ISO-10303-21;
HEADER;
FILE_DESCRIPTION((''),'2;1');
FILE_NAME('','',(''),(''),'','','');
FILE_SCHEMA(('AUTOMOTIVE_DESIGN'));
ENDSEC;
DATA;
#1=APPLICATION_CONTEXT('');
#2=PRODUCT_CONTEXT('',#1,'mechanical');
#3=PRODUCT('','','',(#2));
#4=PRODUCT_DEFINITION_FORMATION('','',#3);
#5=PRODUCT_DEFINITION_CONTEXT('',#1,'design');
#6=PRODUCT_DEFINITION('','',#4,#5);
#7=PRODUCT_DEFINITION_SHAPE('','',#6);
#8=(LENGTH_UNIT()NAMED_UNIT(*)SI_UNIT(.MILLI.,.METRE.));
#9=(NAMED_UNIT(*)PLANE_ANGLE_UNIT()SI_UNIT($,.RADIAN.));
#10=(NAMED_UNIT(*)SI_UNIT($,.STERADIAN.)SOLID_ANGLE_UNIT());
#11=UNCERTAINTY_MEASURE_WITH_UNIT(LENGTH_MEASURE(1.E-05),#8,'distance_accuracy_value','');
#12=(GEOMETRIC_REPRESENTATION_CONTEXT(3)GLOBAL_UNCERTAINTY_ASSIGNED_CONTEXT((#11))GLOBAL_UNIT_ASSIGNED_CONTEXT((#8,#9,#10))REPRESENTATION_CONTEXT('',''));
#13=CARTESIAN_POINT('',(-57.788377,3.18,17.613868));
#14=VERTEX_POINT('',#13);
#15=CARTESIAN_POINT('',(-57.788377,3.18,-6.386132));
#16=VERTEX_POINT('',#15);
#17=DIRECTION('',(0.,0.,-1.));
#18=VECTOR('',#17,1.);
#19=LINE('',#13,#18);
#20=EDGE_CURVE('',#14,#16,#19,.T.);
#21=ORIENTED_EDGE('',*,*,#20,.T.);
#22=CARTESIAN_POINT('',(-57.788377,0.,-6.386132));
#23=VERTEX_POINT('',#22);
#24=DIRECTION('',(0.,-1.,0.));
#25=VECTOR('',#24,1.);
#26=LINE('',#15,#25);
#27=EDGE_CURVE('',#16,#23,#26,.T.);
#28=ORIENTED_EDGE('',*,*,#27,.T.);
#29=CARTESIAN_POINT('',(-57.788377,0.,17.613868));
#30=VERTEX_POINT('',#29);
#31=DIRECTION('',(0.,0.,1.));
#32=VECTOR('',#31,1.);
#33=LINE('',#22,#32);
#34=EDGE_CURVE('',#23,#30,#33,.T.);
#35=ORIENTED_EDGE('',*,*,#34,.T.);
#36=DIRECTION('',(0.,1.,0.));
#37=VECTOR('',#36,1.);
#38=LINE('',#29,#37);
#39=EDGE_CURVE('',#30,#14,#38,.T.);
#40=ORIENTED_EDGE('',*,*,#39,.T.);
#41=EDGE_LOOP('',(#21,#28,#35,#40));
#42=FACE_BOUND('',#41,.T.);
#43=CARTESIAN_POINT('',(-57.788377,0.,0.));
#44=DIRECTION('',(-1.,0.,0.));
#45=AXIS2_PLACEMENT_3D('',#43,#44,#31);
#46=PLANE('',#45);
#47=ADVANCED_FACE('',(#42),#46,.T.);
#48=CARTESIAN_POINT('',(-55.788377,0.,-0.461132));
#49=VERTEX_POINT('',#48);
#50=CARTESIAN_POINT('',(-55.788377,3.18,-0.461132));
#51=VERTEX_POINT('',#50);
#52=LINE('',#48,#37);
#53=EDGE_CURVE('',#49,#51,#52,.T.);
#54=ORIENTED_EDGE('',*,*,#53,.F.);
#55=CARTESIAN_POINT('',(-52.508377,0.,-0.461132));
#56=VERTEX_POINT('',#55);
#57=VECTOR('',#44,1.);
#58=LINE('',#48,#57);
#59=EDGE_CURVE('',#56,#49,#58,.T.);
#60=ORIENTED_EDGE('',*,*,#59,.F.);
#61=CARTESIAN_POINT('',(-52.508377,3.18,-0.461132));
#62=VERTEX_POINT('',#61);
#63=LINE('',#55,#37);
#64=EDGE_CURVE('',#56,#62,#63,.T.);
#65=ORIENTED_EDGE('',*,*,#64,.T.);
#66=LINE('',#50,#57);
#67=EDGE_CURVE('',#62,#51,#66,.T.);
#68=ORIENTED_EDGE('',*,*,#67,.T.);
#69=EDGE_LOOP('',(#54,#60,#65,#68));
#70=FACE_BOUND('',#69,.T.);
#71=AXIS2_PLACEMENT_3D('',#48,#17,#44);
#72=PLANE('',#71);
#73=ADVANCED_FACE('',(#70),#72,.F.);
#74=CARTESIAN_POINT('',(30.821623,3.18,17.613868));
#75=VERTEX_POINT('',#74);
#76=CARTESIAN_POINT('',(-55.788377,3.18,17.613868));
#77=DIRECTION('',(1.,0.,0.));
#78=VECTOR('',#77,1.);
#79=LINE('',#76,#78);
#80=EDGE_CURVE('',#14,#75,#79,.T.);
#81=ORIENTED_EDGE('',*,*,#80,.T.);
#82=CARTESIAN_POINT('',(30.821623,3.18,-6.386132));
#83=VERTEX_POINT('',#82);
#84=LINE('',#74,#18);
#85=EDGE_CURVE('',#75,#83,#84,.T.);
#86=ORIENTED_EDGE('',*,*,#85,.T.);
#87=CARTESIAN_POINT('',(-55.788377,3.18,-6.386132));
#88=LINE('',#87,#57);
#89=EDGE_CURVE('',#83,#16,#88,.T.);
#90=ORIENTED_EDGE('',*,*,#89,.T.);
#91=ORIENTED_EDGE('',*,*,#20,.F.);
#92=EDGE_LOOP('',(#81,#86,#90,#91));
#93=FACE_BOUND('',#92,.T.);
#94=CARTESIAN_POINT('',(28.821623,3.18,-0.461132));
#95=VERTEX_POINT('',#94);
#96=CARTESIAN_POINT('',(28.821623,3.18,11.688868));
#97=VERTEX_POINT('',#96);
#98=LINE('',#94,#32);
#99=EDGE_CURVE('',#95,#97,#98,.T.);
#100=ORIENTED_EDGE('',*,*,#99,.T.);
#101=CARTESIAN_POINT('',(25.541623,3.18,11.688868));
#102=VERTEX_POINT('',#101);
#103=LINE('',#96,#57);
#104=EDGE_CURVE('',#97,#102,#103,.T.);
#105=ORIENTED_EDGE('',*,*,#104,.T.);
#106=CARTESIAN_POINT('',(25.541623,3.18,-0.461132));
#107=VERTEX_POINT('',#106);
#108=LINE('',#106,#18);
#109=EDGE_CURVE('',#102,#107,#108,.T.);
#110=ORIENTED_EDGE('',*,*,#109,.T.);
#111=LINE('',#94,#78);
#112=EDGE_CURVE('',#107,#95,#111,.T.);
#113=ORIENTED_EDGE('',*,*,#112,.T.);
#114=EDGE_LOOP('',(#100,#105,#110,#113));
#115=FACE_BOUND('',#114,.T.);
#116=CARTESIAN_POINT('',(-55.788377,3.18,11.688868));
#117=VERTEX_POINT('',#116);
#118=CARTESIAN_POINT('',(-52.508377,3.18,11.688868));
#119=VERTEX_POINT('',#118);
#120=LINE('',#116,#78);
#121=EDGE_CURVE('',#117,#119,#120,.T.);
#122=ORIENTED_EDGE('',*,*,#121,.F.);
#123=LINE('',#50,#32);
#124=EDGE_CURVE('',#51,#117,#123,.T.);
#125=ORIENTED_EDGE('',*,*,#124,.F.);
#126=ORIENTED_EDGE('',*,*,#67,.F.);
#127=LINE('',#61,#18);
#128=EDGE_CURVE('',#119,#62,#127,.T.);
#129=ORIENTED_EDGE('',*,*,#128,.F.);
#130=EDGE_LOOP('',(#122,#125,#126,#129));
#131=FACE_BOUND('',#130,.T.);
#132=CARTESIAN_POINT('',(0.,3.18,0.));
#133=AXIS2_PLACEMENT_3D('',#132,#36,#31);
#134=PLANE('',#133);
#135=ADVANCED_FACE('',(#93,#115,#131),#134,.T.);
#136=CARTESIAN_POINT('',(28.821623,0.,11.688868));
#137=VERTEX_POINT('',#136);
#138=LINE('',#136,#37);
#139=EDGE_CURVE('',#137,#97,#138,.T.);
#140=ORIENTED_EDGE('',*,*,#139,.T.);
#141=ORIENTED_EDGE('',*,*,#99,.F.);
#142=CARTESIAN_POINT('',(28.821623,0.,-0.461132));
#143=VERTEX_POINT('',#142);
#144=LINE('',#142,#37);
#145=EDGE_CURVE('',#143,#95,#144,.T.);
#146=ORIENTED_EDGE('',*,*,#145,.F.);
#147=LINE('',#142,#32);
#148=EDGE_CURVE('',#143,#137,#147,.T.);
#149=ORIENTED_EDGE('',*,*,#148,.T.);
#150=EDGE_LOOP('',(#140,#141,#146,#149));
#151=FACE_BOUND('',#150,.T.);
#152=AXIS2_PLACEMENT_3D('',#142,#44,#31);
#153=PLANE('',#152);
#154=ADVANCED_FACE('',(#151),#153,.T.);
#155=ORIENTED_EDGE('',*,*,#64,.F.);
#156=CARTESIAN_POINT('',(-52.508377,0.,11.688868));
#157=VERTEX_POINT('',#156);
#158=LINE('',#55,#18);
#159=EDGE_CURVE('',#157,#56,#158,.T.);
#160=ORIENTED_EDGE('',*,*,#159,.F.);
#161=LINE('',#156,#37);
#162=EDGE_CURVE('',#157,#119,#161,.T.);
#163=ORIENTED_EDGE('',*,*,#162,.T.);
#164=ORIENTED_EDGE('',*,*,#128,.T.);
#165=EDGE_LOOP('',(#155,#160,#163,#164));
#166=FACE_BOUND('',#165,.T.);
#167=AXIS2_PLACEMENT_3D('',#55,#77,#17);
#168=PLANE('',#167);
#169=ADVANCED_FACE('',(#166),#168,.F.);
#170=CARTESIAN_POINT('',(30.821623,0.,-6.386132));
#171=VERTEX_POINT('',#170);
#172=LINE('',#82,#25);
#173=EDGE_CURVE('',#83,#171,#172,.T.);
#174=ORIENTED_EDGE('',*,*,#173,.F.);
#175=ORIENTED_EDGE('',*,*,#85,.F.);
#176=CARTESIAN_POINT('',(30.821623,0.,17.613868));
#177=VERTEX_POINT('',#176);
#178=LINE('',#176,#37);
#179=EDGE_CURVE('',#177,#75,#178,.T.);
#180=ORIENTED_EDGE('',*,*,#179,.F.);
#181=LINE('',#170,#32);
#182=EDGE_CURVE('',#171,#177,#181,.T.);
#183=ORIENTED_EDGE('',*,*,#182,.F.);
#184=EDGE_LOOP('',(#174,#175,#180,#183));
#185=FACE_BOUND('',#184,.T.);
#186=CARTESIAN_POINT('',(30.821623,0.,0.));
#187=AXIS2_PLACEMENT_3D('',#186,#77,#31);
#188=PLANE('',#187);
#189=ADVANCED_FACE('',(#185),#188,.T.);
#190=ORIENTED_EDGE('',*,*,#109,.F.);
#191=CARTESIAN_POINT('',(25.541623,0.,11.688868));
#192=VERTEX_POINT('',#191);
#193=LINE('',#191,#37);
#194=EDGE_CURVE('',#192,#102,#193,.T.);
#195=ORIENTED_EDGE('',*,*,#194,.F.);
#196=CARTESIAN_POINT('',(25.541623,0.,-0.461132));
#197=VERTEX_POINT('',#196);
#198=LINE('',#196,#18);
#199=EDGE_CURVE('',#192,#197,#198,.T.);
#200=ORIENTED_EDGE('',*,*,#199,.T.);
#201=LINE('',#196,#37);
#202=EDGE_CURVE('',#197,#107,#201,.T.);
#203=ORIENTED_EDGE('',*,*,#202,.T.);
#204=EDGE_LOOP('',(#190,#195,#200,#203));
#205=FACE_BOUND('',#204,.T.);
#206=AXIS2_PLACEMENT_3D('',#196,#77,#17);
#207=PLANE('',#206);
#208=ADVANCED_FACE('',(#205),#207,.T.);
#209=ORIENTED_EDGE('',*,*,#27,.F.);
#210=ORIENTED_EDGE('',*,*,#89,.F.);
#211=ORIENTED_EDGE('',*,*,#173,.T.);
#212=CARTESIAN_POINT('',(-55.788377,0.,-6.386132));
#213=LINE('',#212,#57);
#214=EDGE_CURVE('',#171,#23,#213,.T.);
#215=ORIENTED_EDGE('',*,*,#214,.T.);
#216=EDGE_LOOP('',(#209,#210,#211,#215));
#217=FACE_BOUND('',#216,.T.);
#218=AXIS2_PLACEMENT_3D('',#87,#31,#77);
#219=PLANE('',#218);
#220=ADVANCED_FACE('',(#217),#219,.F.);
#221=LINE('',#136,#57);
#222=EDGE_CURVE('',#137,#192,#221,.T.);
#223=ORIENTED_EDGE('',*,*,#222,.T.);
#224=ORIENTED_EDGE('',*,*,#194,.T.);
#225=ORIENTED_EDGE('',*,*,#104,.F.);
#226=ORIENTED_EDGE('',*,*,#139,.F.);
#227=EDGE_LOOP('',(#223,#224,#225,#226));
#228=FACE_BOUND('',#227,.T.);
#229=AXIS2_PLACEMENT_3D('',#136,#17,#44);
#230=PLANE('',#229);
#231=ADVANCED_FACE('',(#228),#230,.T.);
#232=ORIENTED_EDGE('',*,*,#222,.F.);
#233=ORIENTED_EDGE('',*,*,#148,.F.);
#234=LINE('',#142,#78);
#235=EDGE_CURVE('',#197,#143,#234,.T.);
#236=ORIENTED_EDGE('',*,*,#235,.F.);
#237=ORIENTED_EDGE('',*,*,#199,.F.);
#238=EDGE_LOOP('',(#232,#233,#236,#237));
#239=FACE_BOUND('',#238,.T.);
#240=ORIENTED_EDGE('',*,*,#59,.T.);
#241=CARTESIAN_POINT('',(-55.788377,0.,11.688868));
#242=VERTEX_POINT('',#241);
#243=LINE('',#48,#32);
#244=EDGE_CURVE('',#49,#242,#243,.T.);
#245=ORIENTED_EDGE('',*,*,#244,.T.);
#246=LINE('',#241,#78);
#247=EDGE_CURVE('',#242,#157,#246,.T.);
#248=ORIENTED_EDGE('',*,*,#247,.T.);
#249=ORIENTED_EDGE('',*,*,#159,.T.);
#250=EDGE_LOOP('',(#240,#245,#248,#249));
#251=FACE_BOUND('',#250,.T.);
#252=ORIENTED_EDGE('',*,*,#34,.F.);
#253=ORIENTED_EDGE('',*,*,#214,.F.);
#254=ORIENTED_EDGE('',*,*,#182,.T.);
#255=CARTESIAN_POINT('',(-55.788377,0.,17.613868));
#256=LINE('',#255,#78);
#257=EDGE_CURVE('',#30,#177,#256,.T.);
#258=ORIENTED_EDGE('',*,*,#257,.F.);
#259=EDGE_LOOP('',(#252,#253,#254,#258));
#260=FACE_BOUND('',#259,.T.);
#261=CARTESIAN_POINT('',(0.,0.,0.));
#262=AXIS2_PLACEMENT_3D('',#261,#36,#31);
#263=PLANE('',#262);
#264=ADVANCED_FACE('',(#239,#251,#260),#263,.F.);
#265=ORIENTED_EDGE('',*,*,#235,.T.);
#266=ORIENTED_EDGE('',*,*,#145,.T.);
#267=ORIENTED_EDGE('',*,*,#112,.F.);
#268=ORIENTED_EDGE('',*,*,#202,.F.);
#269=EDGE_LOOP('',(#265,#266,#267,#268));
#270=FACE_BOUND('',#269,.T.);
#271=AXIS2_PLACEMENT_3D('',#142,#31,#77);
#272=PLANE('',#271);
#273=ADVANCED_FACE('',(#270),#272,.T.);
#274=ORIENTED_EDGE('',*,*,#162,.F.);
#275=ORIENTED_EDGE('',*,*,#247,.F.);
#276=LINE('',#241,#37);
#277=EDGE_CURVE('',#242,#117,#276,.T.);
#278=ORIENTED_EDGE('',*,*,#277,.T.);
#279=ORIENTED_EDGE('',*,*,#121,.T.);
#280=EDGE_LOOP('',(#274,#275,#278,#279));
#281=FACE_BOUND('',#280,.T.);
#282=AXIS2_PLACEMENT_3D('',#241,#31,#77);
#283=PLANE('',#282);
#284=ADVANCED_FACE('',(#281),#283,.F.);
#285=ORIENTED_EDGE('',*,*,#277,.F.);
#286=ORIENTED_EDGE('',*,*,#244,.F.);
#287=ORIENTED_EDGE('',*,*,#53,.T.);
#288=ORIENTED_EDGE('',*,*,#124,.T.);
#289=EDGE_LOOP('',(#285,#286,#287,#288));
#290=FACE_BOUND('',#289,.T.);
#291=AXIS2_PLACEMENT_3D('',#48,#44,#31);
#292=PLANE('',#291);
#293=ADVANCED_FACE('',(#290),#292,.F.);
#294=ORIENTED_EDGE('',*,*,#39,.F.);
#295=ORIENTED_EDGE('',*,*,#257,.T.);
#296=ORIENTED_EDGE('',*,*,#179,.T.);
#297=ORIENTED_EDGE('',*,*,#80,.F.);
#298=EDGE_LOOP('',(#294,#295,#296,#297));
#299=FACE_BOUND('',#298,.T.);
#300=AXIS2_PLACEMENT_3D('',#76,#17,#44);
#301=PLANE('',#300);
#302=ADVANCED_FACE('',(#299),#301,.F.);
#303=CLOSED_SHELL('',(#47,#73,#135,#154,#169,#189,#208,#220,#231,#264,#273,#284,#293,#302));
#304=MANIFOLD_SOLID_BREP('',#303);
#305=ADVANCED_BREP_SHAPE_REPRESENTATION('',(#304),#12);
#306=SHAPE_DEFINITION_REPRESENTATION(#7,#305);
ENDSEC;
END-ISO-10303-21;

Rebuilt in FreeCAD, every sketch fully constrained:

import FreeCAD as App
import Part
import Sketcher
Q = App.Units.Quantity

doc = App.newDocument("Part")
body = doc.addObject("PartDesign::Body", "Body")

# Sketch on XZ plane
sketch1 = body.newObject("Sketcher::SketchObject", "Sketch")
sketch1.AttachmentSupport = (doc.getObject("XZ_Plane"), [""])
sketch1.MapMode = "FlatFace"
sketch1.addGeometry([
    Part.LineSegment(App.Vector(-56, -6, 0), App.Vector(-56, 18, 0)),
    Part.LineSegment(App.Vector(-56, 18, 0), App.Vector(29, 18, 0)),
    Part.LineSegment(App.Vector(29, 18, 0), App.Vector(29, -6, 0)),
    Part.LineSegment(App.Vector(29, -6, 0), App.Vector(-56, -6, 0)),
], False)
sketch1.addConstraint([
    Sketcher.Constraint("Coincident", 0, 2, 1, 1),
    Sketcher.Constraint("Coincident", 1, 2, 2, 1),
    Sketcher.Constraint("Coincident", 2, 2, 3, 1),
    Sketcher.Constraint("Coincident", 3, 2, 0, 1),
    Sketcher.Constraint("Vertical", 0),
    Sketcher.Constraint("Horizontal", 1),
    Sketcher.Constraint("Vertical", 2),
    Sketcher.Constraint("Horizontal", 3),
    Sketcher.Constraint("DistanceY", 0, 1, 0, 2, Q("24 mm")),
    Sketcher.Constraint("DistanceX", 1, 1, 1, 2, Q("84.61 mm")),
    Sketcher.Constraint("DistanceX", 0, 2, -1, 1, Q("55.788377 mm")),
    Sketcher.Constraint("DistanceY", -1, 1, 0, 2, Q("17.613868 mm")),
])
pad1 = body.newObject("PartDesign::Pad", "Pad")
pad1.Profile = sketch1
pad1.Length = 3.18
pad1.Reversed = True

# Sketch on YZ plane
sketch2 = body.newObject("Sketcher::SketchObject", "Sketch001")
sketch2.AttachmentSupport = (doc.getObject("YZ_Plane"), [""])
sketch2.MapMode = "FlatFace"
sketch2.AttachmentOffset = App.Placement(App.Vector(0, 0, -55.788377), App.Rotation())
sketch2.addGeometry([
    Part.LineSegment(App.Vector(3.2, -6.4, 0), App.Vector(0, -6.4, 0)),
    Part.LineSegment(App.Vector(0, -6.4, 0), App.Vector(0, 17.6, 0)),
    Part.LineSegment(App.Vector(0, 17.6, 0), App.Vector(3.2, 17.6, 0)),
    Part.LineSegment(App.Vector(3.2, 17.6, 0), App.Vector(3.2, -6.4, 0)),
], False)
sketch2.addConstraint([
    Sketcher.Constraint("Coincident", 0, 2, 1, 1),
    Sketcher.Constraint("Coincident", 1, 2, 2, 1),
    Sketcher.Constraint("Coincident", 2, 2, 3, 1),
    Sketcher.Constraint("Coincident", 3, 2, 0, 1),
    Sketcher.Constraint("Horizontal", 0),
    Sketcher.Constraint("Vertical", 1),
    Sketcher.Constraint("Horizontal", 2),
    Sketcher.Constraint("Vertical", 3),
    Sketcher.Constraint("PointOnObject", 0, 2, -2),
    Sketcher.Constraint("DistanceY", 1, 1, 1, 2, Q("24 mm")),
    Sketcher.Constraint("DistanceX", 0, 2, 0, 1, Q("3.18 mm")),
    Sketcher.Constraint("DistanceY", 0, 2, -1, 1, Q("6.386132 mm")),
])
pad2 = body.newObject("PartDesign::Pad", "Pad001")
pad2.Profile = sketch2
pad2.Length = 2
pad2.Reversed = True

# Sketch on XZ plane
sketch3 = body.newObject("Sketcher::SketchObject", "Sketch002")
sketch3.AttachmentSupport = (doc.getObject("XZ_Plane"), [""])
sketch3.MapMode = "FlatFace"
sketch3.AttachmentOffset = App.Placement(App.Vector(0, 0, -3.18), App.Rotation())
sketch3.addGeometry([
    Part.LineSegment(App.Vector(-55.8, -0.5, 0), App.Vector(-55.8, 11.7, 0)),
    Part.LineSegment(App.Vector(-55.8, 11.7, 0), App.Vector(-52.5, 11.7, 0)),
    Part.LineSegment(App.Vector(-52.5, 11.7, 0), App.Vector(-52.5, -0.5, 0)),
    Part.LineSegment(App.Vector(-52.5, -0.5, 0), App.Vector(-55.8, -0.5, 0)),
], False)
sketch3.addConstraint([
    Sketcher.Constraint("Coincident", 0, 2, 1, 1),
    Sketcher.Constraint("Coincident", 1, 2, 2, 1),
    Sketcher.Constraint("Coincident", 2, 2, 3, 1),
    Sketcher.Constraint("Coincident", 3, 2, 0, 1),
    Sketcher.Constraint("Vertical", 0),
    Sketcher.Constraint("Horizontal", 1),
    Sketcher.Constraint("Vertical", 2),
    Sketcher.Constraint("Horizontal", 3),
    Sketcher.Constraint("DistanceX", 1, 1, 1, 2, Q("3.28 mm")),
    Sketcher.Constraint("DistanceY", 0, 1, 0, 2, Q("12.15 mm")),
    Sketcher.Constraint("DistanceX", 0, 2, -1, 1, Q("55.788377 mm")),
    Sketcher.Constraint("DistanceY", -1, 1, 0, 2, Q("11.688868 mm")),
])
pocket1 = body.newObject("PartDesign::Pocket", "Pocket")
pocket1.Profile = sketch3
pocket1.Type = "ThroughAll"
pocket1.Reversed = True
doc.recompute()

datumplane = body.newObject("PartDesign::Plane", "DatumPlane")
datumplane.AttachmentSupport = (doc.getObject("YZ_Plane"), [""])
datumplane.MapMode = "FlatFace"
datumplane.AttachmentOffset = App.Placement(App.Vector(0, 0, -13.483377), App.Rotation())
mirrored = body.newObject("PartDesign::Mirrored", "Mirrored")
mirrored.Originals = [pad2, pocket1]
mirrored.MirrorPlane = (datumplane, [""])
body.Tip = mirrored

doc.recompute()
